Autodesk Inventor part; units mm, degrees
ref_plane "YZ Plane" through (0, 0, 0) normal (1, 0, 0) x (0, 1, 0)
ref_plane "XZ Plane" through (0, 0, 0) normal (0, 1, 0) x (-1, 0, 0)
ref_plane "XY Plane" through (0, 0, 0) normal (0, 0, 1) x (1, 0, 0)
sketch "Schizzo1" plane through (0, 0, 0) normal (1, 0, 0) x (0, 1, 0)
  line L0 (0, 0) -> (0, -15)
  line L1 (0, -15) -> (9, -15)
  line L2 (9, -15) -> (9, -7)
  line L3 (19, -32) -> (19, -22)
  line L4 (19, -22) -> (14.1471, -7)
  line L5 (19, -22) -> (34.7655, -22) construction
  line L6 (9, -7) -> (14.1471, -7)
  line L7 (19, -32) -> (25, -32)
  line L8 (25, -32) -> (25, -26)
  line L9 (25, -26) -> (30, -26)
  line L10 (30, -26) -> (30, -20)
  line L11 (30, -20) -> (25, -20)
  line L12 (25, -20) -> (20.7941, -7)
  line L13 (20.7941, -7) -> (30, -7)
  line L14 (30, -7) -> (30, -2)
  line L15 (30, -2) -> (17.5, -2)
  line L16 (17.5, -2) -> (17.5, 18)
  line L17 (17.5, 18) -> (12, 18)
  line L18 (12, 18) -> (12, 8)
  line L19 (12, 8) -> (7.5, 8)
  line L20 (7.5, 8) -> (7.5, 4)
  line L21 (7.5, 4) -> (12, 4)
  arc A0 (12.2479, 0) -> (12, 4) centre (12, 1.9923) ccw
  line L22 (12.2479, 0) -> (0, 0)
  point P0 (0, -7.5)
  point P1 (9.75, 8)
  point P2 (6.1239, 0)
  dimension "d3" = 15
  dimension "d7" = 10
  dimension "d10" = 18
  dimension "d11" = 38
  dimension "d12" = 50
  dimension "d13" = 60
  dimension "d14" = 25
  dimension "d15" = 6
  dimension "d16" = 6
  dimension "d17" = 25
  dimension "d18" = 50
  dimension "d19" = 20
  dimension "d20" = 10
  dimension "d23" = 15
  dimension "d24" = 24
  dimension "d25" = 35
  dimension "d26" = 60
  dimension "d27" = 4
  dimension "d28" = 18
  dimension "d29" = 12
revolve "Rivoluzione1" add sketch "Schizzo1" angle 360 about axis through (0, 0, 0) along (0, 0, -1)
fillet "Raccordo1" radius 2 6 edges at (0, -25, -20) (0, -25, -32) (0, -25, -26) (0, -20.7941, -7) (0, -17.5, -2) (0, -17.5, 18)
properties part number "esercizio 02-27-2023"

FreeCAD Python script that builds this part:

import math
import FreeCAD as App
import Part
import Sketcher

V = App.Vector


def edges_at(feature, points):
    """Names of the edges that pass closest to the given points."""
    edges = feature.Shape.Edges
    near = lambda p: min(range(len(edges)), key=lambda i: edges[i].distToShape(Part.Vertex(*p))[0])
    return sorted({f"Edge{near(p) + 1}" for p in points})

doc = App.newDocument("Part")
body = doc.addObject("PartDesign::Body", "Body")

# Sketch on YZ plane
sketch1 = body.newObject("Sketcher::SketchObject", "Sketch")
sketch1.AttachmentSupport = (doc.getObject("YZ_Plane"), [""])
sketch1.MapMode = "FlatFace"
sketch1.addGeometry([
    Part.LineSegment(V(12.2479, 0, 0), V(0, 0, 0)),  # 0
    Part.LineSegment(V(0, 0, 0), V(0, -15, 0)),  # 1
    Part.LineSegment(V(0, -15, 0), V(9, -15, 0)),  # 2
    Part.LineSegment(V(9, -15, 0), V(9, -7, 0)),  # 3
    Part.LineSegment(V(9, -7, 0), V(14.1471, -7, 0)),  # 4
    Part.LineSegment(V(14.1471, -7, 0), V(19, -22, 0)),  # 5
    Part.LineSegment(V(19, -22, 0), V(19, -32, 0)),  # 6
    Part.LineSegment(V(19, -32, 0), V(25, -32, 0)),  # 7
    Part.LineSegment(V(25, -32, 0), V(25, -26, 0)),  # 8
    Part.LineSegment(V(25, -26, 0), V(30, -26, 0)),  # 9
    Part.LineSegment(V(30, -26, 0), V(30, -20, 0)),  # 10
    Part.LineSegment(V(30, -20, 0), V(25, -20, 0)),  # 11
    Part.LineSegment(V(25, -20, 0), V(20.7941, -7, 0)),  # 12
    Part.LineSegment(V(20.7941, -7, 0), V(30, -7, 0)),  # 13
    Part.LineSegment(V(30, -7, 0), V(30, -2, 0)),  # 14
    Part.LineSegment(V(30, -2, 0), V(17.5, -2, 0)),  # 15
    Part.LineSegment(V(17.5, -2, 0), V(17.5, 18, 0)),  # 16
    Part.LineSegment(V(17.5, 18, 0), V(12, 18, 0)),  # 17
    Part.LineSegment(V(12, 18, 0), V(12, 8, 0)),  # 18
    Part.LineSegment(V(12, 8, 0), V(7.5, 8, 0)),  # 19
    Part.LineSegment(V(7.5, 8, 0), V(7.5, 4, 0)),  # 20
    Part.LineSegment(V(7.5, 4, 0), V(12, 4, 0)),  # 21
    Part.ArcOfCircle(Part.Circle(V(12, 1.9923, 0), V(0, 0, 1), 2.007664), math.radians(-82.907196), math.radians(90)),  # 22
], False)
sketch1.addConstraint([
    Sketcher.Constraint("Coincident", 0, 2, 1, 1),
    Sketcher.Constraint("Coincident", 1, 2, 2, 1),
    Sketcher.Constraint("Coincident", 2, 2, 3, 1),
    Sketcher.Constraint("Coincident", 3, 2, 4, 1),
    Sketcher.Constraint("Coincident", 4, 2, 5, 1),
    Sketcher.Constraint("Coincident", 5, 2, 6, 1),
    Sketcher.Constraint("Coincident", 6, 2, 7, 1),
    Sketcher.Constraint("Coincident", 7, 2, 8, 1),
    Sketcher.Constraint("Coincident", 8, 2, 9, 1),
    Sketcher.Constraint("Coincident", 9, 2, 10, 1),
    Sketcher.Constraint("Coincident", 10, 2, 11, 1),
    Sketcher.Constraint("Coincident", 11, 2, 12, 1),
    Sketcher.Constraint("Coincident", 12, 2, 13, 1),
    Sketcher.Constraint("Coincident", 13, 2, 14, 1),
    Sketcher.Constraint("Coincident", 14, 2, 15, 1),
    Sketcher.Constraint("Coincident", 15, 2, 16, 1),
    Sketcher.Constraint("Coincident", 16, 2, 17, 1),
    Sketcher.Constraint("Coincident", 17, 2, 18, 1),
    Sketcher.Constraint("Coincident", 18, 2, 19, 1),
    Sketcher.Constraint("Coincident", 19, 2, 20, 1),
    Sketcher.Constraint("Coincident", 20, 2, 21, 1),
    Sketcher.Constraint("Tangent", 21, 2, 22, 2),
    Sketcher.Constraint("Coincident", 22, 1, 0, 1),
    Sketcher.Constraint("Horizontal", 0),
    Sketcher.Constraint("Vertical", 1),
    Sketcher.Constraint("Horizontal", 2),
    Sketcher.Constraint("Vertical", 3),
    Sketcher.Constraint("Horizontal", 4),
    Sketcher.Constraint("Vertical", 6),
    Sketcher.Constraint("Horizontal", 7),
    Sketcher.Constraint("Vertical", 8),
    Sketcher.Constraint("Horizontal", 9),
    Sketcher.Constraint("Vertical", 10),
    Sketcher.Constraint("Horizontal", 11),
    Sketcher.Constraint("Horizontal", 13),
    Sketcher.Constraint("Vertical", 14),
    Sketcher.Constraint("Horizontal", 15),
    Sketcher.Constraint("Vertical", 16),
    Sketcher.Constraint("Horizontal", 17),
    Sketcher.Constraint("Vertical", 18),
    Sketcher.Constraint("Horizontal", 19),
    Sketcher.Constraint("Vertical", 20),
    Sketcher.Constraint("Horizontal", 21),
    Sketcher.Constraint("Coincident", 0, 2, -1, 1),
    Sketcher.Constraint("Parallel", 5, 12),
    Sketcher.Constraint("Horizontal", 4, 2, 12, 2),
    Sketcher.Constraint("Vertical", 8, 2, 11, 2),
    Sketcher.Constraint("Vertical", 10, 2, 13, 2),
    Sketcher.Constraint("Vertical", 22, 3, 17, 2),
    Sketcher.Constraint("Equal", 7, 8),
    Sketcher.Constraint("Equal", 8, 10),
    Sketcher.Constraint("Equal", 11, 14),
    Sketcher.Constraint("Equal", 6, 18),
    Sketcher.Constraint("DistanceX", 7, 1, 7, 2, 6.0),
    Sketcher.Constraint("DistanceY", 1, 2, 1, 1, 15.0),
    Sketcher.Constraint("DistanceY", 6, 2, 6, 1, 10.0),
    Sketcher.Constraint("DistanceY", 16, 1, 16, 2, 20.0),
    Sketcher.Constraint("DistanceY", 20, 2, 20, 1, 4.0),
    Sketcher.Constraint("DistanceX", -1, 1, 22, 3, 12.0),
    Sketcher.Constraint("DistanceX", -1, 1, 7, 2, 25.0),
    Sketcher.Constraint("DistanceY", 10, 2, -1, 1, 20.0),
    Sketcher.Constraint("DistanceY", -1, 1, 16, 2, 18.0),
    Sketcher.Constraint("DistanceX", 2, 2, 5, 2, 10.0),
    Sketcher.Constraint("DistanceY", 5, 2, 4, 2, 15.0),
    Sketcher.Constraint("DistanceX", 19, 2, 15, 2, 10.0),
    Sketcher.Constraint("DistanceX", 15, 2, 15, 1, 12.5),
    Sketcher.Constraint("Radius", 22, 2.0077),
    Sketcher.Constraint("DistanceX", 4, 1, 4, 2, 5.147),
])
revolution = body.newObject("PartDesign::Revolution", "Revolution")
revolution.Profile = sketch1
revolution.ReferenceAxis = (sketch1, ["V_Axis"])
revolution.Angle = 360
doc.recompute()

fillet = body.newObject("PartDesign::Fillet", "Fillet")
fillet.Base = (revolution, edges_at(revolution, [
    (0, -25, -20),
    (0, -25, -32),
    (0, -25, -26),
    (0, -20.794, -7),
    (0, -17.5, -2),
    (0, -17.5, 18),
]))
fillet.Radius = 2

doc.recompute()
